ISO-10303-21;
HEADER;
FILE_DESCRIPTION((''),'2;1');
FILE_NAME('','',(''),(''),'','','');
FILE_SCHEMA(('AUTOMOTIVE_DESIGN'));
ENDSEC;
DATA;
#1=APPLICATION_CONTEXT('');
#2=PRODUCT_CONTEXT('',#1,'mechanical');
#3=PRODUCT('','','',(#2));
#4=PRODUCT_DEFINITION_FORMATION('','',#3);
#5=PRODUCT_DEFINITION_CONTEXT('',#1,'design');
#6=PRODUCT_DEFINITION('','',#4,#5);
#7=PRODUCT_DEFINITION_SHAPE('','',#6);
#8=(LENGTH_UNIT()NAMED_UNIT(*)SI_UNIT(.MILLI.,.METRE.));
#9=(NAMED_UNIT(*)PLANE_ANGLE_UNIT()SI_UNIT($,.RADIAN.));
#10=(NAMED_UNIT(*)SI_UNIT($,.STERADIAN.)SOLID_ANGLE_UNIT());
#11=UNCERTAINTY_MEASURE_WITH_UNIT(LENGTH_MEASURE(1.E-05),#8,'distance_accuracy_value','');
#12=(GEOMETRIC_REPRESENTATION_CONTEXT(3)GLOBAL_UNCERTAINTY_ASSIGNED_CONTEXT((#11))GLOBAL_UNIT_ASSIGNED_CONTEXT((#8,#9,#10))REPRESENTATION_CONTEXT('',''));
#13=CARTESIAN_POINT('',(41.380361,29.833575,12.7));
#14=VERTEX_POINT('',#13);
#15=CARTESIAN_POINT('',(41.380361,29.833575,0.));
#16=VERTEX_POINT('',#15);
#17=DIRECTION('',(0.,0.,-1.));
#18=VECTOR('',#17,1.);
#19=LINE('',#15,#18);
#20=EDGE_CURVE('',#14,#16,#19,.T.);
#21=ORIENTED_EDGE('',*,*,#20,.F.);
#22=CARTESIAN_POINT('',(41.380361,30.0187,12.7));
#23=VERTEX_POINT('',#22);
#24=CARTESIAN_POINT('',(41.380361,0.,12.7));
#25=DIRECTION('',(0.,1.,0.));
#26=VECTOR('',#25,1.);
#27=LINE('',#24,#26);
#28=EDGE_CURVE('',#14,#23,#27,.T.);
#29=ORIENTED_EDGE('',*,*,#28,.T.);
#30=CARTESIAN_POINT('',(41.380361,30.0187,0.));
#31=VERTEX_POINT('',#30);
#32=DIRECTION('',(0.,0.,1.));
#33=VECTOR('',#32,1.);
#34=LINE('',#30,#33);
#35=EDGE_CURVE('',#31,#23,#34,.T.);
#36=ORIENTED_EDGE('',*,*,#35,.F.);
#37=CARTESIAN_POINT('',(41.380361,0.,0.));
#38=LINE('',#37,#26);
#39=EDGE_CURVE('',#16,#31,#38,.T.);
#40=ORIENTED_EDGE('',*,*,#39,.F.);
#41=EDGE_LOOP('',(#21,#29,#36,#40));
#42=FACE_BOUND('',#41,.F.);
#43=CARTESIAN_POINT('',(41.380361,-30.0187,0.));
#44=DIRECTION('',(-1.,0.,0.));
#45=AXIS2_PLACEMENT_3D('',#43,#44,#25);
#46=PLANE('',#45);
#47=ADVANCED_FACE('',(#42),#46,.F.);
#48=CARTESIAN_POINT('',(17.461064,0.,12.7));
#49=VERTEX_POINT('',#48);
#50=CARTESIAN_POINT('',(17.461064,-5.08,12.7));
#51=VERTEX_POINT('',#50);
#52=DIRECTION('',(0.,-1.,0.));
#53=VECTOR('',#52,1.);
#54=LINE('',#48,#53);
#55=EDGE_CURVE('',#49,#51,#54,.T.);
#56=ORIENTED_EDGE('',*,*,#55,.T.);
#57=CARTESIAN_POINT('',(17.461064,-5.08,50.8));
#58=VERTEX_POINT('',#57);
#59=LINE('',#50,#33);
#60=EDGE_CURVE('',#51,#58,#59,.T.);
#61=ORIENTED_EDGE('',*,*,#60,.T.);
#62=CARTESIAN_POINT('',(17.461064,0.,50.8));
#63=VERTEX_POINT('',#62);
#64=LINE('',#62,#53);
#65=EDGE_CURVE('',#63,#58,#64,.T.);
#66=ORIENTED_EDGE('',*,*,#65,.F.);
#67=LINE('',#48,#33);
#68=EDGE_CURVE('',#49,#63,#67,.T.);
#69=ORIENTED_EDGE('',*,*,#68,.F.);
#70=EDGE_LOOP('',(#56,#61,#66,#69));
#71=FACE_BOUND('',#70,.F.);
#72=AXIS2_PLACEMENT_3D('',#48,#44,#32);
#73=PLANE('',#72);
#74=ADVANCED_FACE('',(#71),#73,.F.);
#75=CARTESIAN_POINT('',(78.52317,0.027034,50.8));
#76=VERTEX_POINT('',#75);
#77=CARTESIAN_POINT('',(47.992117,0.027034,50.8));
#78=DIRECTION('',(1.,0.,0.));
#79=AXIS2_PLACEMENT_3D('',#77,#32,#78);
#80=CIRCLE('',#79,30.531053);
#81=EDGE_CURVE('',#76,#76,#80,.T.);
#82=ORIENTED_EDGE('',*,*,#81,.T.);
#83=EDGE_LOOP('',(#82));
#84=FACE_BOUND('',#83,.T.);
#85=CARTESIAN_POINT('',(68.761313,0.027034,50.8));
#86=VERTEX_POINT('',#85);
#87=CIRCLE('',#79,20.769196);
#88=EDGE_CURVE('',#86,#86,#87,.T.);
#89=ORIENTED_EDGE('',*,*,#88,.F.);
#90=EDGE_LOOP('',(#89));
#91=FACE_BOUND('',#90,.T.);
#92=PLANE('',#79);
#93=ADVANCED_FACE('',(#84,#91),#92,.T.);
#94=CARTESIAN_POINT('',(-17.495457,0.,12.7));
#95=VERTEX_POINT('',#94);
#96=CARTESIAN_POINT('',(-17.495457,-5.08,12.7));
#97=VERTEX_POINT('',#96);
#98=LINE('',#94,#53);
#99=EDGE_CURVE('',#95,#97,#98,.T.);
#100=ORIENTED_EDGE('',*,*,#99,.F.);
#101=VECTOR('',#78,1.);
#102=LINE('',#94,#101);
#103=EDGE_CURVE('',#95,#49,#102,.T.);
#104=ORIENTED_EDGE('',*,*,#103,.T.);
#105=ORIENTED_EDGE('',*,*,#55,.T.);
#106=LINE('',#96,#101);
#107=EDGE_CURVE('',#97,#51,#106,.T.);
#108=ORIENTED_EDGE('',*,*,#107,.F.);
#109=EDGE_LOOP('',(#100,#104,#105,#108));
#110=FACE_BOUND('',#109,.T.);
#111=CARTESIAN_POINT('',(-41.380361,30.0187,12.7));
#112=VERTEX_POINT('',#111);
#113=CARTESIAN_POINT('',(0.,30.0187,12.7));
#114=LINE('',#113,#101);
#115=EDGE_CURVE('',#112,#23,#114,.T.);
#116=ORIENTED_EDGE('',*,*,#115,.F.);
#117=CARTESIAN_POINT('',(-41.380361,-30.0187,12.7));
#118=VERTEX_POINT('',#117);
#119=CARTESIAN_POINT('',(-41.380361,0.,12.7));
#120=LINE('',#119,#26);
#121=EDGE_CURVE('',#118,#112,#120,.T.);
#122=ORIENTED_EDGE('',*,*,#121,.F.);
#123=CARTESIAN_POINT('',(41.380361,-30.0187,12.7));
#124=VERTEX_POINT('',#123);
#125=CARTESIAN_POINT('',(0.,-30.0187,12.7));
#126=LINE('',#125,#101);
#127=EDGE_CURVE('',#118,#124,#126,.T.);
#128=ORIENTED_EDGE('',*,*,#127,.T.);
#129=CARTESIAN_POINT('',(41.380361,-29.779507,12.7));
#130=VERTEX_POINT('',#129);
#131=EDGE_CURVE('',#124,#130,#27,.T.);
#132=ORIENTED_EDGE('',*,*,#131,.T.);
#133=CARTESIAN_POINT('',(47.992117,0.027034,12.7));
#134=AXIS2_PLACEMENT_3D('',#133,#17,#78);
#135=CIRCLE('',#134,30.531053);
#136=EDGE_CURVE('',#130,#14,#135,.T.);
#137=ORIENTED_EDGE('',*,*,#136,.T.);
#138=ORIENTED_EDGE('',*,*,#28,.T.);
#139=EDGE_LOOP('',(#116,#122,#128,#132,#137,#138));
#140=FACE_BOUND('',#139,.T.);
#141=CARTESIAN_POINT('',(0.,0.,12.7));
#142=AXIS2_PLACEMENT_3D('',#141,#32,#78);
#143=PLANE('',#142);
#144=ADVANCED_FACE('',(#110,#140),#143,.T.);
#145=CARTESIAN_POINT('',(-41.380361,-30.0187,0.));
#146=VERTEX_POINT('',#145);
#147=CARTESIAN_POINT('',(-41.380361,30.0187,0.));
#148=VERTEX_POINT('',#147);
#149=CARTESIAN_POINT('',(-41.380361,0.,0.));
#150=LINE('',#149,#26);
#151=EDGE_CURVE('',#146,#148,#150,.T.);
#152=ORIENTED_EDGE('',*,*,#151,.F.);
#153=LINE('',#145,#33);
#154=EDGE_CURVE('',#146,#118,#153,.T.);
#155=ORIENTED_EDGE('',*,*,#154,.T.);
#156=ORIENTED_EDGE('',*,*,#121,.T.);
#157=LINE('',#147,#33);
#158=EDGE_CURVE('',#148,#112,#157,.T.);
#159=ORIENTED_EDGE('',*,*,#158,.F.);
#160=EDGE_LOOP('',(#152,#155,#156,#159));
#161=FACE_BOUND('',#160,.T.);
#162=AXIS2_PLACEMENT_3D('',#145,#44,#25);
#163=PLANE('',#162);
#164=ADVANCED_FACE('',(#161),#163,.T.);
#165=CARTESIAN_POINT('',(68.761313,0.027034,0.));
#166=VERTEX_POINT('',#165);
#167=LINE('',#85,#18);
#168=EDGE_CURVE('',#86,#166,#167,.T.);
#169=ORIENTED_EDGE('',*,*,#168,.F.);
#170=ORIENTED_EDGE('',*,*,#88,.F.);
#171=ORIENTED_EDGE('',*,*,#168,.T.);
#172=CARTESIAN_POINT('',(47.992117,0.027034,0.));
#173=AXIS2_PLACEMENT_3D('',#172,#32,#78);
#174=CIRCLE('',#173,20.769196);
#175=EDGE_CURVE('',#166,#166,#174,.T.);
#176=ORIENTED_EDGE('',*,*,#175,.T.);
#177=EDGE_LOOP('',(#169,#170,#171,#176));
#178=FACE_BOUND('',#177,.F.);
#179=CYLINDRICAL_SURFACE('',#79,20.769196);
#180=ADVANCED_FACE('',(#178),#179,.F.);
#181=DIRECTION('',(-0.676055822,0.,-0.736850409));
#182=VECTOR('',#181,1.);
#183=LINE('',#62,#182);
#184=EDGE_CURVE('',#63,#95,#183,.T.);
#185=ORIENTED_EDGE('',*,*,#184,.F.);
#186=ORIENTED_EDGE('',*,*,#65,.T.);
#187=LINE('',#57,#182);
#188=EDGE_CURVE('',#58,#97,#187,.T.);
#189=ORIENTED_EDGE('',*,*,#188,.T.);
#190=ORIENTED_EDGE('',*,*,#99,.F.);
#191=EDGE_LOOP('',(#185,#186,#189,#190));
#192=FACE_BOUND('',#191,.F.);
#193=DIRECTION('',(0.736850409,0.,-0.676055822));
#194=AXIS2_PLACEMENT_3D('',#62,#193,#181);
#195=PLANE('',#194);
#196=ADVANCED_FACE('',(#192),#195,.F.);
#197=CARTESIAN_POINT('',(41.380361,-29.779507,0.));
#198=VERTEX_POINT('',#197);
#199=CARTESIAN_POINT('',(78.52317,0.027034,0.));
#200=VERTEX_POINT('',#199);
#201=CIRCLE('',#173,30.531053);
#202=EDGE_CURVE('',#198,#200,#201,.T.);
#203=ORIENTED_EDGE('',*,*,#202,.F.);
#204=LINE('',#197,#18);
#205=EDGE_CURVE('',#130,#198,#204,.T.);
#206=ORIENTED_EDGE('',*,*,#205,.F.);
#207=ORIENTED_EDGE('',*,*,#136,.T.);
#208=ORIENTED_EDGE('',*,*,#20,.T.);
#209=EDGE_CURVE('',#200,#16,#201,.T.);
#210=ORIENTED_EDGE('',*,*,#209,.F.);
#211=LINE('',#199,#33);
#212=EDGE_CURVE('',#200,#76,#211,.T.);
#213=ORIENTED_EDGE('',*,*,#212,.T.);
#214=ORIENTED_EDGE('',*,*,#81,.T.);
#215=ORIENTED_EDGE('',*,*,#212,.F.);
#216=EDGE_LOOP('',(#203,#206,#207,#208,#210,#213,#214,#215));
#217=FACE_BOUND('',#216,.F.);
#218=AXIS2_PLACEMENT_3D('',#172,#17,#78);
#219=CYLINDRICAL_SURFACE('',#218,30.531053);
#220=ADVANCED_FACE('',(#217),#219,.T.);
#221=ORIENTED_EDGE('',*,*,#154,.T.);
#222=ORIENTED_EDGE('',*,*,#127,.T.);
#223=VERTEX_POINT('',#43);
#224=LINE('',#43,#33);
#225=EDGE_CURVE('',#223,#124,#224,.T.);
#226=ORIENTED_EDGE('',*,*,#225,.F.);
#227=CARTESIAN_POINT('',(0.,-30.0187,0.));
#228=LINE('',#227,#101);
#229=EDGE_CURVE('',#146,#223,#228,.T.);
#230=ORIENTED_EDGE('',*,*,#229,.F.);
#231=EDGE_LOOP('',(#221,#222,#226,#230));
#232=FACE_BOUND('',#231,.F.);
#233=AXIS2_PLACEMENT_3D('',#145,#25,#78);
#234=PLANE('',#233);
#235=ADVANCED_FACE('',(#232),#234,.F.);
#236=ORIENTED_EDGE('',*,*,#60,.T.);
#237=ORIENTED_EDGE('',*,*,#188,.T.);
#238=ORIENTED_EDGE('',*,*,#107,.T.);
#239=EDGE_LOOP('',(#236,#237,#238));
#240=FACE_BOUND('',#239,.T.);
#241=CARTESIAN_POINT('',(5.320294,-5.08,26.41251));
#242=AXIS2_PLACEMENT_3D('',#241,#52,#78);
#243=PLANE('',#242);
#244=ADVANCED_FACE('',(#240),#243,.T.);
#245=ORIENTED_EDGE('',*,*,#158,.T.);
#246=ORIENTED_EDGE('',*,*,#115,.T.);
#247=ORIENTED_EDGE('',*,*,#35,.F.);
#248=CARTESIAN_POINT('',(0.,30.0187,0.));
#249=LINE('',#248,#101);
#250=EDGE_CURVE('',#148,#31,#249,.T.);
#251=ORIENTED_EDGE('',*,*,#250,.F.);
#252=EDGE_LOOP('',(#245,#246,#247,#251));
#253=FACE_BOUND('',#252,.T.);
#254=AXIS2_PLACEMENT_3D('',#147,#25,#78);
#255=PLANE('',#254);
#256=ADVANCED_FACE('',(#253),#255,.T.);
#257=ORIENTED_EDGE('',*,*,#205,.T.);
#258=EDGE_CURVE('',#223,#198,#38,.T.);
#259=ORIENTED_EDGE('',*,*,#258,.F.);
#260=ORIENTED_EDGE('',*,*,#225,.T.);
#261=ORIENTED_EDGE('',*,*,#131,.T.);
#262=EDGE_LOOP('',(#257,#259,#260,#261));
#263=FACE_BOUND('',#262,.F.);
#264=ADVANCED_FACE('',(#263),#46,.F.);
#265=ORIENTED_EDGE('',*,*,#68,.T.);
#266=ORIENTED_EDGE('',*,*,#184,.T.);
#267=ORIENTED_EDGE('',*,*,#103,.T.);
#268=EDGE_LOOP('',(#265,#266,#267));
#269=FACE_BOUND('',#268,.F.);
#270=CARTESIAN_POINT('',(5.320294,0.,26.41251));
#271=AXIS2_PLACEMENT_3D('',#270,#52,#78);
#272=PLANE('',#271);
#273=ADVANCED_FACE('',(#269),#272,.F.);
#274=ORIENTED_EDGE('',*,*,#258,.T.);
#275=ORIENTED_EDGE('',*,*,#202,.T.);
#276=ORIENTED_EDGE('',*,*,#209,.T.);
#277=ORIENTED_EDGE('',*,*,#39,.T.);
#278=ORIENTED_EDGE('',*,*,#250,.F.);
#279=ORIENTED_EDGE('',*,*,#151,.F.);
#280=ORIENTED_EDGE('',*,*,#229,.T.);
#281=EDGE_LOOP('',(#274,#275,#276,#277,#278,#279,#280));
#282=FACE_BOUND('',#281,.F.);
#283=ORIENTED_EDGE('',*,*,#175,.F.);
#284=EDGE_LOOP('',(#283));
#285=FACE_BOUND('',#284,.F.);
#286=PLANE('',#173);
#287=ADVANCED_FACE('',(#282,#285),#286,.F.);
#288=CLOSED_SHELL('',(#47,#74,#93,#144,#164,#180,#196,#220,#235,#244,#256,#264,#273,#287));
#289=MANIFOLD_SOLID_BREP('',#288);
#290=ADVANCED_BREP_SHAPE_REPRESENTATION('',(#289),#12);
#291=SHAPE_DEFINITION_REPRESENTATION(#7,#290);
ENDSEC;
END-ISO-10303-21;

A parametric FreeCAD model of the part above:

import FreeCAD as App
import Part
import Sketcher

V = App.Vector
Q = App.Units.Quantity

doc = App.newDocument("Part")
body = doc.addObject("PartDesign::Body", "Body")

# Sketch on XY plane
sketch1 = body.newObject("Sketcher::SketchObject", "Sketch")
sketch1.AttachmentSupport = (doc.getObject("XY_Plane"), [""])
sketch1.MapMode = "FlatFace"
sketch1.addGeometry([
    Part.LineSegment(V(-41, 30, 0), V(-41, -30, 0)),
    Part.LineSegment(V(-41, -30, 0), V(41, -30, 0)),
    Part.LineSegment(V(41, -30, 0), V(41, 30, 0)),
    Part.LineSegment(V(41, 30, 0), V(-41, 30, 0)),
], False)
sketch1.addConstraint([
    Sketcher.Constraint("Coincident", 0, 2, 1, 1),
    Sketcher.Constraint("Coincident", 1, 2, 2, 1),
    Sketcher.Constraint("Coincident", 2, 2, 3, 1),
    Sketcher.Constraint("Coincident", 3, 2, 0, 1),
    Sketcher.Constraint("Vertical", 0),
    Sketcher.Constraint("Horizontal", 1),
    Sketcher.Constraint("Vertical", 2),
    Sketcher.Constraint("Horizontal", 3),
    Sketcher.Constraint("Symmetric", 0, 2, 2, 2, -1, 1),
    Sketcher.Constraint("DistanceY", 0, 2, 0, 1, 60.0374),
    Sketcher.Constraint("DistanceX", 1, 1, 1, 2, 82.760722),
])
pad1 = body.newObject("PartDesign::Pad", "Pad")
pad1.Profile = sketch1
pad1.Length = Q("0.5 in")

# Sketch on XY plane
sketch2 = body.newObject("Sketcher::SketchObject", "Sketch001")
sketch2.AttachmentSupport = (doc.getObject("XY_Plane"), [""])
sketch2.MapMode = "FlatFace"
sketch2.addGeometry(Part.Circle(V(48, 0, 0), V(0, 0, 1), 31), False)
sketch2.addConstraint([
    Sketcher.Constraint("Diameter", 0, 61.062106),
    Sketcher.Constraint("DistanceX", -1, 1, 0, 3, 47.992117),
    Sketcher.Constraint("DistanceY", -1, 1, 0, 3, 0.027034),
])
pad2 = body.newObject("PartDesign::Pad", "Pad001")
pad2.Profile = sketch2
pad2.Length = Q("2 in")

# Sketch on XZ plane
sketch3 = body.newObject("Sketcher::SketchObject", "Sketch002")
sketch3.AttachmentSupport = (doc.getObject("XZ_Plane"), [""])
sketch3.MapMode = "FlatFace"
sketch3.addGeometry([
    Part.LineSegment(V(-17, 13, 0), V(17, 13, 0)),
    Part.LineSegment(V(17, 13, 0), V(17, 51, 0)),
    Part.LineSegment(V(17, 51, 0), V(-17, 13, 0)),
], False)
sketch3.addConstraint([
    Sketcher.Constraint("Coincident", 0, 2, 1, 1),
    Sketcher.Constraint("Coincident", 1, 2, 2, 1),
    Sketcher.Constraint("Coincident", 2, 2, 0, 1),
    Sketcher.Constraint("Horizontal", 0),
    Sketcher.Constraint("Vertical", 1),
    Sketcher.Constraint("DistanceY", 1, 1, 1, 2, Q("1.5 in")),
    Sketcher.Constraint("DistanceY", -1, 1, 1, 2, Q("2 in")),
    Sketcher.Constraint("DistanceX", 0, 1, 0, 2, 34.956521),
    Sketcher.Constraint("DistanceX", -1, 1, 0, 2, 17.461064),
])
pad3 = body.newObject("PartDesign::Pad", "Pad002")
pad3.Profile = sketch3
pad3.Length = Q("0.2 in")

# Sketch on XY plane
sketch4 = body.newObject("Sketcher::SketchObject", "Sketch003")
sketch4.AttachmentSupport = (doc.getObject("XY_Plane"), [""])
sketch4.MapMode = "FlatFace"
sketch4.AttachmentOffset = App.Placement(V(0, 0, 2 * 25.4), App.Rotation())
sketch4.addGeometry(Part.Circle(V(48, 0, 0), V(0, 0, 1), 21), False)
sketch4.addConstraint([
    Sketcher.Constraint("Diameter", 0, 41.538392),
    Sketcher.Constraint("DistanceX", -1, 1, 0, 3, 47.992117),
    Sketcher.Constraint("DistanceY", -1, 1, 0, 3, 0.027034),
])
pocket1 = body.newObject("PartDesign::Pocket", "Pocket")
pocket1.Profile = sketch4
pocket1.Type = "ThroughAll"

doc.recompute()
